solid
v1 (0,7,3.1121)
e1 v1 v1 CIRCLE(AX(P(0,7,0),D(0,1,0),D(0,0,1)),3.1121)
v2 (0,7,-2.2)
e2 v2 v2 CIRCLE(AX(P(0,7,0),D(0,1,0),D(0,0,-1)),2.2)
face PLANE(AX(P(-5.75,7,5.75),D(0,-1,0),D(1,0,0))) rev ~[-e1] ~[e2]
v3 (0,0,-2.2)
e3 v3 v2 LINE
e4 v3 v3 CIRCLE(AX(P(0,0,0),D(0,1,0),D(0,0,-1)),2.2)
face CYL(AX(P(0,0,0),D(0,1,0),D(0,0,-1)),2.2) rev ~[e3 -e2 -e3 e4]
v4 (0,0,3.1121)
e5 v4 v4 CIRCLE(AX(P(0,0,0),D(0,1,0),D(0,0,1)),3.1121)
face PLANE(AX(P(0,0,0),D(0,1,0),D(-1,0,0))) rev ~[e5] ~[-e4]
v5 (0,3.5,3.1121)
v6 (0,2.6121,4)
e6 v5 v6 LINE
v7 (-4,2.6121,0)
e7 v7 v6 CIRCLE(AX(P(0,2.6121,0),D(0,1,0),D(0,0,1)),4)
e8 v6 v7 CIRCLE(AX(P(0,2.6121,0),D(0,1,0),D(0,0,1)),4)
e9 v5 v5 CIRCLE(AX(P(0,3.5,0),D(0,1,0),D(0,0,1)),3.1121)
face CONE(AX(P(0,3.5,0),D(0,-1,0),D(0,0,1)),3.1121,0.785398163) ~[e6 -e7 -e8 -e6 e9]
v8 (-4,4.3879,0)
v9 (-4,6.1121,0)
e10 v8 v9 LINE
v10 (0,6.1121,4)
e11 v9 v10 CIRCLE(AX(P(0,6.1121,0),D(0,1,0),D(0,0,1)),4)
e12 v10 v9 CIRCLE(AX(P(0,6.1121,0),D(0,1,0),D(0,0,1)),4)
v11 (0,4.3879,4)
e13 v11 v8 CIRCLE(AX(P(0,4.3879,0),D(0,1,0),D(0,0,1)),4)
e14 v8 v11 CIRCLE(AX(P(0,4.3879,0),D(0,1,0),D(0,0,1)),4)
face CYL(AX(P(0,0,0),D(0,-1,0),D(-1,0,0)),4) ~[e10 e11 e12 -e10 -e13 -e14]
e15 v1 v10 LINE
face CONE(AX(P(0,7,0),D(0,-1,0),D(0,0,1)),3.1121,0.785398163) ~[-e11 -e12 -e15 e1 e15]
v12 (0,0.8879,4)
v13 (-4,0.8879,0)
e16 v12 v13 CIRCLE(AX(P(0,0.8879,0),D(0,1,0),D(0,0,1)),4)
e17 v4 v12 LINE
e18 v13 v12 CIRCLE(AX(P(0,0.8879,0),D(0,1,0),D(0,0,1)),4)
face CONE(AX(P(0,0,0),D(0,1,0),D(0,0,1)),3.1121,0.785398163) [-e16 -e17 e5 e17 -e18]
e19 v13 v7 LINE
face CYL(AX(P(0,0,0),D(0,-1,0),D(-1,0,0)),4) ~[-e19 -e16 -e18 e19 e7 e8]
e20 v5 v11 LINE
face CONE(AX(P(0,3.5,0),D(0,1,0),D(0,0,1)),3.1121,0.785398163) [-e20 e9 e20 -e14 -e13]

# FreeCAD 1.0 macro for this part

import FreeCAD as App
import Part
import Sketcher

V = App.Vector

doc = App.newDocument("Part")
body = doc.addObject("PartDesign::Body", "Body")

# Sketch on XZ plane
sketch1 = doc.addObject("Sketcher::SketchObject", "Sketch")
body.addObject(sketch1)
sketch1.AttachmentSupport = (doc.XZ_Plane, [""])
sketch1.MapMode = "FlatFace"
sketch1.addGeometry(Part.Circle(V(0, 0, 0), V(0, 0, 1), 4), False)
sketch1.addConstraint(Sketcher.Constraint("Coincident", 0, 3, -1, 1))
sketch1.addConstraint(Sketcher.Constraint("Diameter", 0, 8.0))
pad1 = doc.addObject("PartDesign::Pad", "Pad")
body.addObject(pad1)
pad1.Profile = sketch1
pad1.Length = 7
pad1.Reversed = True

# Sketch on XZ plane
sketch2 = doc.addObject("Sketcher::SketchObject", "Sketch001")
body.addObject(sketch2)
sketch2.AttachmentSupport = (doc.XZ_Plane, [""])
sketch2.MapMode = "FlatFace"
sketch2.AttachmentOffset = App.Placement(V(0, 0, -7), App.Rotation())
sketch2.addGeometry(Part.Circle(V(0, 0, 0), V(0, 0, 1), 6), False)
sketch2.addConstraint(Sketcher.Constraint("Coincident", 0, 3, -1, 1))
sketch2.addConstraint(Sketcher.Constraint("Diameter", 0, 11.5))
pad2 = doc.addObject("PartDesign::Pad", "Pad001")
body.addObject(pad2)
pad2.Profile = sketch2
pad2.Length = 3.2
pad2.Reversed = True

# Sketch on YZ plane
sketch3 = doc.addObject("Sketcher::SketchObject", "Sketch002")
body.addObject(sketch3)
sketch3.AttachmentSupport = (doc.YZ_Plane, [""])
sketch3.MapMode = "FlatFace"
sketch3.addGeometry(Part.LineSegment(V(19.5, 4, 0), V(20.4, 3.1, 0)), False)
sketch3.addGeometry(Part.LineSegment(V(20.4, 3.1, 0), V(20.4, 8.5, 0)), False)
sketch3.addGeometry(Part.LineSegment(V(20.4, 8.5, 0), V(0, 8.5, 0)), False)
sketch3.addGeometry(Part.LineSegment(V(0, 8.5, 0), V(0, 3.1, 0)), False)
sketch3.addGeometry(Part.LineSegment(V(0, 3.1, 0), V(0.9, 4, 0)), False)
sketch3.addGeometry(Part.LineSegment(V(0.9, 4, 0), V(2.6, 4, 0)), False)
sketch3.addGeometry(Part.LineSegment(V(2.6, 4, 0), V(3.5, 3.1, 0)), False)
sketch3.addGeometry(Part.LineSegment(V(3.5, 3.1, 0), V(4.4, 4, 0)), False)
sketch3.addGeometry(Part.LineSegment(V(4.4, 4, 0), V(6.1, 4, 0)), False)
sketch3.addGeometry(Part.LineSegment(V(6.1, 4, 0), V(7, 3.1, 0)), False)
sketch3.addGeometry(Part.LineSegment(V(7, 3.1, 0), V(7, 6.6, 0)), False)
sketch3.addGeometry(Part.LineSegment(V(7, 6.6, 0), V(13.4, 6.6, 0)), False)
sketch3.addGeometry(Part.LineSegment(V(13.4, 6.6, 0), V(13.4, 3.1, 0)), False)
sketch3.addGeometry(Part.LineSegment(V(13.4, 3.1, 0), V(14.3, 4, 0)), False)
sketch3.addGeometry(Part.LineSegment(V(14.3, 4, 0), V(16, 4, 0)), False)
sketch3.addGeometry(Part.LineSegment(V(16, 4, 0), V(16.9, 3.1, 0)), False)
sketch3.addGeometry(Part.LineSegment(V(16.9, 3.1, 0), V(17.8, 4, 0)), False)
sketch3.addGeometry(Part.LineSegment(V(17.8, 4, 0), V(19.5, 4, 0)), False)
sketch3.addConstraint(Sketcher.Constraint("Coincident", 0, 2, 1, 1))
sketch3.addConstraint(Sketcher.Constraint("Coincident", 1, 2, 2, 1))
sketch3.addConstraint(Sketcher.Constraint("Coincident", 2, 2, 3, 1))
sketch3.addConstraint(Sketcher.Constraint("Coincident", 3, 2, 4, 1))
sketch3.addConstraint(Sketcher.Constraint("Coincident", 4, 2, 5, 1))
sketch3.addConstraint(Sketcher.Constraint("Coincident", 5, 2, 6, 1))
sketch3.addConstraint(Sketcher.Constraint("Coincident", 6, 2, 7, 1))
sketch3.addConstraint(Sketcher.Constraint("Coincident", 7, 2, 8, 1))
sketch3.addConstraint(Sketcher.Constraint("Coincident", 8, 2, 9, 1))
sketch3.addConstraint(Sketcher.Constraint("Coincident", 9, 2, 10, 1))
sketch3.addConstraint(Sketcher.Constraint("Coincident", 10, 2, 11, 1))
sketch3.addConstraint(Sketcher.Constraint("Coincident", 11, 2, 12, 1))
sketch3.addConstraint(Sketcher.Constraint("Coincident", 12, 2, 13, 1))
sketch3.addConstraint(Sketcher.Constraint("Coincident", 13, 2, 14, 1))
sketch3.addConstraint(Sketcher.Constraint("Coincident", 14, 2, 15, 1))
sketch3.addConstraint(Sketcher.Constraint("Coincident", 15, 2, 16, 1))
sketch3.addConstraint(Sketcher.Constraint("Coincident", 16, 2, 17, 1))
sketch3.addConstraint(Sketcher.Constraint("Coincident", 17, 2, 0, 1))
sketch3.addConstraint(Sketcher.Constraint("Vertical", 1))
sketch3.addConstraint(Sketcher.Constraint("Horizontal", 2))
sketch3.addConstraint(Sketcher.Constraint("Vertical", 3))
sketch3.addConstraint(Sketcher.Constraint("Horizontal", 5))
sketch3.addConstraint(Sketcher.Constraint("Horizontal", 8))
sketch3.addConstraint(Sketcher.Constraint("Vertical", 10))
sketch3.addConstraint(Sketcher.Constraint("Horizontal", 11))
sketch3.addConstraint(Sketcher.Constraint("Vertical", 12))
sketch3.addConstraint(Sketcher.Constraint("Horizontal", 14))
sketch3.addConstraint(Sketcher.Constraint("Horizontal", 17))
sketch3.addConstraint(Sketcher.Constraint("PointOnObject", 2, 2, -2))
sketch3.addConstraint(Sketcher.Constraint("Perpendicular", 0, 4))
sketch3.addConstraint(Sketcher.Constraint("Perpendicular", 4, 6))
sketch3.addConstraint(Sketcher.Constraint("Perpendicular", 6, 7))
sketch3.addConstraint(Sketcher.Constraint("Perpendicular", 7, 9))
sketch3.addConstraint(Sketcher.Constraint("Perpendicular", 9, 13))
sketch3.addConstraint(Sketcher.Constraint("Perpendicular", 13, 15))
sketch3.addConstraint(Sketcher.Constraint("Perpendicular", 15, 16))
sketch3.addConstraint(Sketcher.Constraint("Horizontal", 0, 2, 3, 2))
sketch3.addConstraint(Sketcher.Constraint("Horizontal", 3, 2, 6, 2))
sketch3.addConstraint(Sketcher.Constraint("Horizontal", 5, 2, 7, 2))
sketch3.addConstraint(Sketcher.Constraint("Horizontal", 6, 2, 9, 2))
sketch3.addConstraint(Sketcher.Constraint("Horizontal", 9, 2, 12, 2))
sketch3.addConstraint(Sketcher.Constraint("Horizontal", 8, 2, 13, 2))
sketch3.addConstraint(Sketcher.Constraint("Horizontal", 12, 2, 15, 2))
sketch3.addConstraint(Sketcher.Constraint("Horizontal", 14, 2, 16, 2))
sketch3.addConstraint(Sketcher.Constraint("Equal", 5, 8))
sketch3.addConstraint(Sketcher.Constraint("Equal", 8, 14))
sketch3.addConstraint(Sketcher.Constraint("Equal", 14, 17))
sketch3.addConstraint(Sketcher.Constraint("Equal", 0, 4))
sketch3.addConstraint(Sketcher.Constraint("DistanceX", 2, 2, 2, 1, 20.4))
sketch3.addConstraint(Sketcher.Constraint("DistanceX", 11, 1, 11, 2, 6.4))
sketch3.addConstraint(Sketcher.Constraint("DistanceY", 10, 1, 10, 2, 3.5))
sketch3.addConstraint(Sketcher.Constraint("DistanceY", -1, 1, 4, 2, 4.0))
sketch3.addConstraint(Sketcher.Constraint("DistanceX", 5, 1, 5, 2, 1.7242))
sketch3.addConstraint(Sketcher.Constraint("DistanceY", 1, 1, 1, 2, 5.4324))
groove = doc.addObject("PartDesign::Groove", "Groove")
body.addObject(groove)
groove.Profile = sketch3
groove.ReferenceAxis = (sketch3, ["H_Axis"])
groove.Angle = 360

# Sketch on XZ plane
sketch4 = doc.addObject("Sketcher::SketchObject", "Sketch003")
body.addObject(sketch4)
sketch4.AttachmentSupport = (doc.XZ_Plane, [""])
sketch4.MapMode = "FlatFace"
sketch4.addGeometry(Part.Circle(V(0, 0, 0), V(0, 0, 1), 2.2), False)
sketch4.addConstraint(Sketcher.Constraint("Coincident", 0, 3, -1, 1))
sketch4.addConstraint(Sketcher.Constraint("Diameter", 0, 4.4))
doc.recompute()
hole = doc.addObject("PartDesign::Hole", "Hole")
body.addObject(hole)
hole.Profile = sketch4
hole.ThreadType = "None"
hole.Diameter = 4.4
hole.DepthType = "ThroughAll"

# Sketch on XY plane
sketch5 = doc.addObject("Sketcher::SketchObject", "Sketch004")
body.addObject(sketch5)
sketch5.AttachmentSupport = (doc.XY_Plane, [""])
sketch5.MapMode = "FlatFace"
sketch5.AttachmentOffset = App.Placement(V(0, 0, 5.75), App.Rotation())
sketch5.addGeometry(Part.LineSegment(V(5.8, 7, 0), V(5.8, 10.2, 0)), False)
sketch5.addGeometry(Part.LineSegment(V(5.8, 10.2, 0), V(-5.8, 10.2, 0)), False)
sketch5.addGeometry(Part.LineSegment(V(-5.8, 10.2, 0), V(-5.8, 7, 0)), False)
sketch5.addGeometry(Part.LineSegment(V(-5.8, 7, 0), V(5.8, 7, 0)), False)
sketch5.addConstraint(Sketcher.Constraint("Coincident", 0, 2, 1, 1))
sketch5.addConstraint(Sketcher.Constraint("Coincident", 1, 2, 2, 1))
sketch5.addConstraint(Sketcher.Constraint("Coincident", 2, 2, 3, 1))
sketch5.addConstraint(Sketcher.Constraint("Coincident", 3, 2, 0, 1))
sketch5.addConstraint(Sketcher.Constraint("Vertical", 0))
sketch5.addConstraint(Sketcher.Constraint("Horizontal", 1))
sketch5.addConstraint(Sketcher.Constraint("Vertical", 2))
sketch5.addConstraint(Sketcher.Constraint("Horizontal", 3))
sketch5.addConstraint(Sketcher.Constraint("DistanceX", 1, 2, 1, 1, 11.5))
sketch5.addConstraint(Sketcher.Constraint("DistanceY", 0, 1, 0, 2, 3.2))
sketch5.addConstraint(Sketcher.Constraint("DistanceY", -1, 1, 2, 2, 7.0))
sketch5.addConstraint(Sketcher.Constraint("DistanceX", -1, 1, 0, 2, 5.75))
pocket1 = doc.addObject("PartDesign::Pocket", "Pocket")
body.addObject(pocket1)
pocket1.Profile = sketch5
pocket1.Type = "ThroughAll"

doc.recompute()
